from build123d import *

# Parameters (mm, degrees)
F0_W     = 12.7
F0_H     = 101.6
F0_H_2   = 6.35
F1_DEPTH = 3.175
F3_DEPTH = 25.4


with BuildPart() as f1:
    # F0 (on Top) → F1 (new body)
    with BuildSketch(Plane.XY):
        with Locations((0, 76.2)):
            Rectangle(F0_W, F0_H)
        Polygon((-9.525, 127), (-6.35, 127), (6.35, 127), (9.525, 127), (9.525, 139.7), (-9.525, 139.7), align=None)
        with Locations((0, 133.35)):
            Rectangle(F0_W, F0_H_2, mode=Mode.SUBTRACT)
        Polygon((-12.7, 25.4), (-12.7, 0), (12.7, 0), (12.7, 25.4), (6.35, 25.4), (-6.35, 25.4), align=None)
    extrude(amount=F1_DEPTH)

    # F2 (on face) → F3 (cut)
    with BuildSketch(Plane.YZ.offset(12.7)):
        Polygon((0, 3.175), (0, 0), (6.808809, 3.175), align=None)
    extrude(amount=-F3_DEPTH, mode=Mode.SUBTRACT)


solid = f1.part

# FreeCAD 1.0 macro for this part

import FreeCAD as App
import Part
import Sketcher
Q = App.Units.Quantity

doc = App.newDocument("Part")
params = doc.addObject("Spreadsheet::Sheet", "Params")
for row, (alias, value) in enumerate([
    ("sketch1_width", "1 in"),
    ("sketch1_height", "4 in"),
    ("sketch1_width2", "0.5 in"),
    ("sketch1_width3", "0.75 in"),
    ("pad1_length", "0.125 in"),
    ("sketch2_height", "0.125 in"),
    ("pocket1_length", "1 in"),
], start=1):
    params.set(f"A{row}", alias)
    params.set(f"B{row}", "=" + value)
    params.setAlias(f"B{row}", alias)

body = doc.addObject("PartDesign::Body", "Body")

sketch1 = doc.addObject("Sketcher::SketchObject", "Sketch")
body.addObject(sketch1)
sketch1.AttachmentSupport = (doc.XY_Plane, [""])
sketch1.MapMode = "FlatFace"
sketch1.addGeometry(Part.LineSegment(App.Vector(-6.35, 127, 0), App.Vector(-6.35, 25.4, 0)), False)
sketch1.addGeometry(Part.LineSegment(App.Vector(-6.35, 25.4, 0), App.Vector(-12.7, 25.4, 0)), False)
sketch1.addGeometry(Part.LineSegment(App.Vector(-12.7, 25.4, 0), App.Vector(-12.7, 0, 0)), False)
sketch1.addGeometry(Part.LineSegment(App.Vector(-12.7, 0, 0), App.Vector(12.7, 0, 0)), False)
sketch1.addGeometry(Part.LineSegment(App.Vector(12.7, 0, 0), App.Vector(12.7, 25.4, 0)), False)
sketch1.addGeometry(Part.LineSegment(App.Vector(12.7, 25.4, 0), App.Vector(6.35, 25.4, 0)), False)
sketch1.addGeometry(Part.LineSegment(App.Vector(6.35, 25.4, 0), App.Vector(6.35, 127, 0)), False)
sketch1.addGeometry(Part.LineSegment(App.Vector(6.35, 127, 0), App.Vector(9.525, 127, 0)), False)
sketch1.addGeometry(Part.LineSegment(App.Vector(9.525, 127, 0), App.Vector(9.525, 139.7, 0)), False)
sketch1.addGeometry(Part.LineSegment(App.Vector(9.525, 139.7, 0), App.Vector(-9.525, 139.7, 0)), False)
sketch1.addGeometry(Part.LineSegment(App.Vector(-9.525, 139.7, 0), App.Vector(-9.525, 127, 0)), False)
sketch1.addGeometry(Part.LineSegment(App.Vector(-9.525, 127, 0), App.Vector(-6.35, 127, 0)), False)
sketch1.addGeometry(Part.LineSegment(App.Vector(6.35, 130.175, 0), App.Vector(-6.35, 130.175, 0)), False)
sketch1.addGeometry(Part.LineSegment(App.Vector(-6.35, 130.175, 0), App.Vector(-6.35, 136.525, 0)), False)
sketch1.addGeometry(Part.LineSegment(App.Vector(-6.35, 136.525, 0), App.Vector(6.35, 136.525, 0)), False)
sketch1.addGeometry(Part.LineSegment(App.Vector(6.35, 136.525, 0), App.Vector(6.35, 130.175, 0)), False)
sketch1.addConstraint(Sketcher.Constraint("Coincident", 0, 2, 1, 1))
sketch1.addConstraint(Sketcher.Constraint("Coincident", 1, 2, 2, 1))
sketch1.addConstraint(Sketcher.Constraint("Coincident", 2, 2, 3, 1))
sketch1.addConstraint(Sketcher.Constraint("Coincident", 3, 2, 4, 1))
sketch1.addConstraint(Sketcher.Constraint("Coincident", 4, 2, 5, 1))
sketch1.addConstraint(Sketcher.Constraint("Coincident", 5, 2, 6, 1))
sketch1.addConstraint(Sketcher.Constraint("Coincident", 6, 2, 7, 1))
sketch1.addConstraint(Sketcher.Constraint("Coincident", 7, 2, 8, 1))
sketch1.addConstraint(Sketcher.Constraint("Coincident", 8, 2, 9, 1))
sketch1.addConstraint(Sketcher.Constraint("Coincident", 9, 2, 10, 1))
sketch1.addConstraint(Sketcher.Constraint("Coincident", 10, 2, 11, 1))
sketch1.addConstraint(Sketcher.Constraint("Coincident", 11, 2, 0, 1))
sketch1.addConstraint(Sketcher.Constraint("Coincident", 12, 2, 13, 1))
sketch1.addConstraint(Sketcher.Constraint("Coincident", 13, 2, 14, 1))
sketch1.addConstraint(Sketcher.Constraint("Coincident", 14, 2, 15, 1))
sketch1.addConstraint(Sketcher.Constraint("Coincident", 15, 2, 12, 1))
sketch1.addConstraint(Sketcher.Constraint("Vertical", 0))
sketch1.addConstraint(Sketcher.Constraint("Horizontal", 1))
sketch1.addConstraint(Sketcher.Constraint("Vertical", 2))
sketch1.addConstraint(Sketcher.Constraint("Horizontal", 3))
sketch1.addConstraint(Sketcher.Constraint("Vertical", 4))
sketch1.addConstraint(Sketcher.Constraint("Horizontal", 5))
sketch1.addConstraint(Sketcher.Constraint("Vertical", 6))
sketch1.addConstraint(Sketcher.Constraint("Horizontal", 7))
sketch1.addConstraint(Sketcher.Constraint("Vertical", 8))
sketch1.addConstraint(Sketcher.Constraint("Horizontal", 9))
sketch1.addConstraint(Sketcher.Constraint("Vertical", 10))
sketch1.addConstraint(Sketcher.Constraint("Horizontal", 11))
sketch1.addConstraint(Sketcher.Constraint("Horizontal", 12))
sketch1.addConstraint(Sketcher.Constraint("Vertical", 13))
sketch1.addConstraint(Sketcher.Constraint("Horizontal", 14))
sketch1.addConstraint(Sketcher.Constraint("Vertical", 15))
sketch1.addConstraint(Sketcher.Constraint("Symmetric", 2, 2, 3, 2, -1, 1))
sketch1.addConstraint(Sketcher.Constraint("Symmetric", 0, 2, 5, 2, -2))
sketch1.addConstraint(Sketcher.Constraint("Symmetric", 7, 2, 10, 2, -2))
sketch1.addConstraint(Sketcher.Constraint("Vertical", 11, 2, 12, 2))
sketch1.addConstraint(Sketcher.Constraint("Vertical", 6, 2, 14, 2))
sketch1.addConstraint(Sketcher.Constraint("Equal", 3, 2))
sketch1.addConstraint(Sketcher.Constraint("Equal", 14, 8))
sketch1.addConstraint(Sketcher.Constraint("Equal", 5, 13))
sketch1.addConstraint(Sketcher.Constraint("DistanceX", 3, 1, 3, 2, Q("1 in")))
sketch1.addConstraint(Sketcher.Constraint("DistanceY", 0, 2, 0, 1, Q("4 in")))
sketch1.addConstraint(Sketcher.Constraint("DistanceX", 12, 2, 12, 1, Q("0.5 in")))
sketch1.addConstraint(Sketcher.Constraint("DistanceX", 9, 2, 9, 1, Q("0.75 in")))
sketch1.addConstraint(Sketcher.Constraint("DistanceY", -1, 1, 12, 2, Q("5.125 in")))
sketch1.setExpression("Constraints[40]", "Params.sketch1_width")
sketch1.setExpression("Constraints[41]", "Params.sketch1_height")
sketch1.setExpression("Constraints[42]", "Params.sketch1_width2")
sketch1.setExpression("Constraints[43]", "Params.sketch1_width3")
pad1 = doc.addObject("PartDesign::Pad", "Pad")
body.addObject(pad1)
pad1.Profile = sketch1
pad1.setExpression("Length", "Params.pad1_length")

sketch2 = doc.addObject("Sketcher::SketchObject", "Sketch001")
body.addObject(sketch2)
sketch2.AttachmentSupport = (doc.YZ_Plane, [""])
sketch2.MapMode = "FlatFace"
sketch2.AttachmentOffset = App.Placement(App.Vector(0, 0, 0.5 * 25.4), App.Rotation())
sketch2.addGeometry(Part.LineSegment(App.Vector(0, 3.175, 0), App.Vector(0, 0, 0)), False)
sketch2.addGeometry(Part.LineSegment(App.Vector(0, 0, 0), App.Vector(6.808809, 3.175, 0)), False)
sketch2.addGeometry(Part.LineSegment(App.Vector(6.808809, 3.175, 0), App.Vector(0, 3.175, 0)), False)
sketch2.addConstraint(Sketcher.Constraint("Coincident", 0, 2, 1, 1))
sketch2.addConstraint(Sketcher.Constraint("Coincident", 1, 2, 2, 1))
sketch2.addConstraint(Sketcher.Constraint("Coincident", 2, 2, 0, 1))
sketch2.addConstraint(Sketcher.Constraint("Vertical", 0))
sketch2.addConstraint(Sketcher.Constraint("Horizontal", 2))
sketch2.addConstraint(Sketcher.Constraint("Coincident", 0, 2, -1, 1))
sketch2.addConstraint(Sketcher.Constraint("Angle", 1, Q("25.000002 deg")))
sketch2.addConstraint(Sketcher.Constraint("DistanceY", 0, 2, 0, 1, Q("0.125 in")))
sketch2.setExpression("Constraints[7]", "Params.sketch2_height")
pocket1 = doc.addObject("PartDesign::Pocket", "Pocket")
body.addObject(pocket1)
pocket1.Profile = sketch2
pocket1.setExpression("Length", "Params.pocket1_length")

doc.recompute()
